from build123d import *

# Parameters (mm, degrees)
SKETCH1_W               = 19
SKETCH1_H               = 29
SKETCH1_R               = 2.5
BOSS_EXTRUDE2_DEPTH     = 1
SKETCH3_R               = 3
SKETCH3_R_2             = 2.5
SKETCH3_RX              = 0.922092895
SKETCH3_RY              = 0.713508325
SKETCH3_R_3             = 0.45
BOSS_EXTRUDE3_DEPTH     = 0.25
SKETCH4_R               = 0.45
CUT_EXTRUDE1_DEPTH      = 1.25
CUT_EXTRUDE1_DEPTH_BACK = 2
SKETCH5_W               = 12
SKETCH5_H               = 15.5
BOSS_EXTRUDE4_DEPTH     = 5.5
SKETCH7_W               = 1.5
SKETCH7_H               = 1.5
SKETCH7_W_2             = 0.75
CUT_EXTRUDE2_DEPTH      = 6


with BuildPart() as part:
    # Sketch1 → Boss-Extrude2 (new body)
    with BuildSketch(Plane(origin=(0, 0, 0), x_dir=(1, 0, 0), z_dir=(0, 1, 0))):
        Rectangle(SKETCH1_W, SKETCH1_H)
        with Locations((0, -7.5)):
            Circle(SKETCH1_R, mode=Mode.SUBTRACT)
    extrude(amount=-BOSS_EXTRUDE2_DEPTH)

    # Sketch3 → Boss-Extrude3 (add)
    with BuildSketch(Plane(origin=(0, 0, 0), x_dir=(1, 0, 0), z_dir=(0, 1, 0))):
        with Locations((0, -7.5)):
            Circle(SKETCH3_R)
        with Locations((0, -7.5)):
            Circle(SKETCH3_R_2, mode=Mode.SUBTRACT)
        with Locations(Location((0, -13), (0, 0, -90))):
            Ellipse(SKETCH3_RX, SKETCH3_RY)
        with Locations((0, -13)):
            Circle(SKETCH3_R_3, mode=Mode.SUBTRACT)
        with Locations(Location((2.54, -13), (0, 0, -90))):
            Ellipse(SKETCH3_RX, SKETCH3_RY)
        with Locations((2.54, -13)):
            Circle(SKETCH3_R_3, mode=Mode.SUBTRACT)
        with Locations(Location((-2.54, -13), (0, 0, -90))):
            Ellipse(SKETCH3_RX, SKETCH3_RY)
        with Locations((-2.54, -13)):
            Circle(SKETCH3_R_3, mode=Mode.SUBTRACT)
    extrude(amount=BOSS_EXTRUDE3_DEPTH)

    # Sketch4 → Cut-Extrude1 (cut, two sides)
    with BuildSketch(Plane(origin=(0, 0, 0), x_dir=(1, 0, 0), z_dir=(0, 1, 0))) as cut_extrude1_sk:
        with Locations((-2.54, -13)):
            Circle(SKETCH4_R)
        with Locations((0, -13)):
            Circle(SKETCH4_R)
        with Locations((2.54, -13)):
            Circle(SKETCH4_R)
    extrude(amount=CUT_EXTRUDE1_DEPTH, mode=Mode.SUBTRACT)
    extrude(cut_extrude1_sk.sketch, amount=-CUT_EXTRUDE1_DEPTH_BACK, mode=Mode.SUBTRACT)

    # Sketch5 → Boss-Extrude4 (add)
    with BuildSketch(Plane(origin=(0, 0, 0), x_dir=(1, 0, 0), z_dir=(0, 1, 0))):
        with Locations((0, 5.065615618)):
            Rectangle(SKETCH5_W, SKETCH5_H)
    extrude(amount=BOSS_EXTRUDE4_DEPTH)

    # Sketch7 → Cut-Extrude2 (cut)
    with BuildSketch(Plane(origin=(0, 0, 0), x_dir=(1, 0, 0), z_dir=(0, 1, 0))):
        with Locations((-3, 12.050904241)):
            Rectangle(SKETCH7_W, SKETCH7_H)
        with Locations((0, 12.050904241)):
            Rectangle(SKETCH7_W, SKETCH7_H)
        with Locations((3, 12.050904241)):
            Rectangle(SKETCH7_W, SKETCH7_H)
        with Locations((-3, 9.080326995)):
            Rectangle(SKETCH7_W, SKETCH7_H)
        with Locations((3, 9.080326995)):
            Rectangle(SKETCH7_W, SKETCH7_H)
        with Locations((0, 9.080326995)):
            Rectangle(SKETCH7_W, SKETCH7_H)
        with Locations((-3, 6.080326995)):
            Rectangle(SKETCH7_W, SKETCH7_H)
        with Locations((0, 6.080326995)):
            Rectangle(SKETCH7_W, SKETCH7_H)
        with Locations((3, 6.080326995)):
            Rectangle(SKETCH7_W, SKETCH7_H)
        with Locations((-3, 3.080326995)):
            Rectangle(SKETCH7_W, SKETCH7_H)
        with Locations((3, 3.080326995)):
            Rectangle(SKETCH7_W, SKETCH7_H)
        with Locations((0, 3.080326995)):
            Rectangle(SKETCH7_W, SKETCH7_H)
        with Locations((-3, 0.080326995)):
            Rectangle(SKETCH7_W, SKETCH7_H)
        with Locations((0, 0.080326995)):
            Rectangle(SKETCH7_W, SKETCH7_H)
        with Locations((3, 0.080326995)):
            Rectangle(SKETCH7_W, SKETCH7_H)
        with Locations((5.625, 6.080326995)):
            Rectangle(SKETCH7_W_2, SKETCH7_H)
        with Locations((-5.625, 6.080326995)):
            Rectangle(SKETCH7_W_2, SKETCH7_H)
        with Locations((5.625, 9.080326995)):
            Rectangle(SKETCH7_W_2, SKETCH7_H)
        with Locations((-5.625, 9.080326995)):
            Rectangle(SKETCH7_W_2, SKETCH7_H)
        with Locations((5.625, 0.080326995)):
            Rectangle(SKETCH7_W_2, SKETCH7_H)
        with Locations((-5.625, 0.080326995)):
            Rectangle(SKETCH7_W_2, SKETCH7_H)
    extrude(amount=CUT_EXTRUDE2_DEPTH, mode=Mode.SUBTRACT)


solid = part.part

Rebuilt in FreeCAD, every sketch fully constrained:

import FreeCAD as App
import Part
import Sketcher

doc = App.newDocument("Part")
body = doc.addObject("PartDesign::Body", "Body")

# Sketch on XZ plane
sketch1 = body.newObject("Sketcher::SketchObject", "Sketch")
sketch1.AttachmentSupport = (doc.getObject("XZ_Plane"), [""])
sketch1.MapMode = "FlatFace"
sketch1.addGeometry(Part.LineSegment(App.Vector(-9.5, -14.5, 0), App.Vector(-9.5, 14.5, 0)), False)
sketch1.addGeometry(Part.LineSegment(App.Vector(-9.5, 14.5, 0), App.Vector(9.5, 14.5, 0)), False)
sketch1.addGeometry(Part.LineSegment(App.Vector(9.5, 14.5, 0), App.Vector(9.5, -14.5, 0)), False)
sketch1.addGeometry(Part.LineSegment(App.Vector(9.5, -14.5, 0), App.Vector(-9.5, -14.5, 0)), False)
sketch1.addGeometry(Part.Circle(App.Vector(0, 7.5, 0), App.Vector(0, 0, 1), 2.5), False)
sketch1.addConstraint(Sketcher.Constraint("Coincident", 0, 2, 1, 1))
sketch1.addConstraint(Sketcher.Constraint("Coincident", 1, 2, 2, 1))
sketch1.addConstraint(Sketcher.Constraint("Coincident", 2, 2, 3, 1))
sketch1.addConstraint(Sketcher.Constraint("Coincident", 3, 2, 0, 1))
sketch1.addConstraint(Sketcher.Constraint("Vertical", 0))
sketch1.addConstraint(Sketcher.Constraint("Horizontal", 1))
sketch1.addConstraint(Sketcher.Constraint("Vertical", 2))
sketch1.addConstraint(Sketcher.Constraint("Horizontal", 3))
sketch1.addConstraint(Sketcher.Constraint("Symmetric", 0, 2, 2, 2, -1, 1))
sketch1.addConstraint(Sketcher.Constraint("PointOnObject", 4, 3, -2))
sketch1.addConstraint(Sketcher.Constraint("Diameter", 4, 5.0))
sketch1.addConstraint(Sketcher.Constraint("DistanceX", 1, 1, 1, 2, 19.0))
sketch1.addConstraint(Sketcher.Constraint("DistanceY", 0, 1, 0, 2, 29.0))
sketch1.addConstraint(Sketcher.Constraint("DistanceY", 4, 3, 0, 2, 7.0))
pad1 = body.newObject("PartDesign::Pad", "Pad")
pad1.Profile = sketch1
pad1.Length = 1

# Sketch on XZ plane
sketch2 = body.newObject("Sketcher::SketchObject", "Sketch001")
sketch2.AttachmentSupport = (doc.getObject("XZ_Plane"), [""])
sketch2.MapMode = "FlatFace"
sketch2.addGeometry(Part.Circle(App.Vector(0, 7.5, 0), App.Vector(0, 0, 1), 3), False)
sketch2.addGeometry(Part.Circle(App.Vector(0, 7.5, 0), App.Vector(0, 0, 1), 2.5), False)
sketch2.addGeometry(Part.Ellipse(App.Vector(0, 13.922093, 0), App.Vector(-0.713508, 13, 0), App.Vector(0, 13, 0)), False)
sketch2.addGeometry(Part.Circle(App.Vector(0, 13, 0), App.Vector(0, 0, 1), 0.45), False)
sketch2.addGeometry(Part.Ellipse(App.Vector(2.54, 13.922093, 0), App.Vector(1.826492, 13, 0), App.Vector(2.54, 13, 0)), False)
sketch2.addGeometry(Part.Circle(App.Vector(2.54, 13, 0), App.Vector(0, 0, 1), 0.45), False)
sketch2.addGeometry(Part.Ellipse(App.Vector(-2.54, 13.922093, 0), App.Vector(-3.253508, 13, 0), App.Vector(-2.54, 13, 0)), False)
sketch2.addGeometry(Part.Circle(App.Vector(-2.54, 13, 0), App.Vector(0, 0, 1), 0.45), False)
sketch2.addConstraint(Sketcher.Constraint("Block", 2))
sketch2.addConstraint(Sketcher.Constraint("Block", 4))
sketch2.addConstraint(Sketcher.Constraint("Block", 6))
sketch2.addConstraint(Sketcher.Constraint("Coincident", 1, 3, 0, 3))
sketch2.addConstraint(Sketcher.Constraint("Equal", 3, 5))
sketch2.addConstraint(Sketcher.Constraint("Equal", 5, 7))
sketch2.addConstraint(Sketcher.Constraint("Symmetric", 5, 3, 7, 3, -2))
sketch2.addConstraint(Sketcher.Constraint("PointOnObject", 0, 3, -2))
sketch2.addConstraint(Sketcher.Constraint("PointOnObject", 3, 3, -2))
sketch2.addConstraint(Sketcher.Constraint("Horizontal", 3, 3, 5, 3))
sketch2.addConstraint(Sketcher.Constraint("Diameter", 0, 6.0))
sketch2.addConstraint(Sketcher.Constraint("Diameter", 1, 5.0))
sketch2.addConstraint(Sketcher.Constraint("Diameter", 3, 0.9))
sketch2.addConstraint(Sketcher.Constraint("DistanceY", -1, 1, 3, 3, 13.0))
sketch2.addConstraint(Sketcher.Constraint("DistanceY", -1, 1, 0, 3, 7.5))
sketch2.addConstraint(Sketcher.Constraint("DistanceX", -1, 1, 5, 3, 2.54))
pad2 = body.newObject("PartDesign::Pad", "Pad001")
pad2.Profile = sketch2
pad2.Length = 0.25
pad2.Reversed = True

# Sketch on XZ plane
sketch3 = body.newObject("Sketcher::SketchObject", "Sketch002")
sketch3.AttachmentSupport = (doc.getObject("XZ_Plane"), [""])
sketch3.MapMode = "FlatFace"
sketch3.addGeometry(Part.Circle(App.Vector(-2.54, 13, 0), App.Vector(0, 0, 1), 0.45), False)
sketch3.addGeometry(Part.Circle(App.Vector(0, 13, 0), App.Vector(0, 0, 1), 0.45), False)
sketch3.addGeometry(Part.Circle(App.Vector(2.54, 13, 0), App.Vector(0, 0, 1), 0.45), False)
sketch3.addConstraint(Sketcher.Constraint("Equal", 0, 1))
sketch3.addConstraint(Sketcher.Constraint("Equal", 1, 2))
sketch3.addConstraint(Sketcher.Constraint("Symmetric", 0, 3, 2, 3, -2))
sketch3.addConstraint(Sketcher.Constraint("PointOnObject", 1, 3, -2))
sketch3.addConstraint(Sketcher.Constraint("Horizontal", 0, 3, 1, 3))
sketch3.addConstraint(Sketcher.Constraint("Diameter", 0, 0.9))
sketch3.addConstraint(Sketcher.Constraint("DistanceY", -1, 1, 0, 3, 13.0))
sketch3.addConstraint(Sketcher.Constraint("DistanceX", 0, 3, -1, 1, 2.54))
pocket1 = body.newObject("PartDesign::Pocket", "Pocket")
pocket1.Profile = sketch3
pocket1.Type = "ThroughAll"
pocket1.Midplane = True

# Sketch on XZ plane
sketch4 = body.newObject("Sketcher::SketchObject", "Sketch003")
sketch4.AttachmentSupport = (doc.getObject("XZ_Plane"), [""])
sketch4.MapMode = "FlatFace"
sketch4.addGeometry(Part.LineSegment(App.Vector(-6, -12.815616, 0), App.Vector(-6, 2.684384, 0)), False)
sketch4.addGeometry(Part.LineSegment(App.Vector(-6, 2.684384, 0), App.Vector(6, 2.684384, 0)), False)
sketch4.addGeometry(Part.LineSegment(App.Vector(6, 2.684384, 0), App.Vector(6, -12.815616, 0)), False)
sketch4.addGeometry(Part.LineSegment(App.Vector(6, -12.815616, 0), App.Vector(-6, -12.815616, 0)), False)
sketch4.addConstraint(Sketcher.Constraint("Coincident", 0, 2, 1, 1))
sketch4.addConstraint(Sketcher.Constraint("Coincident", 1, 2, 2, 1))
sketch4.addConstraint(Sketcher.Constraint("Coincident", 2, 2, 3, 1))
sketch4.addConstraint(Sketcher.Constraint("Coincident", 3, 2, 0, 1))
sketch4.addConstraint(Sketcher.Constraint("Vertical", 0))
sketch4.addConstraint(Sketcher.Constraint("Horizontal", 1))
sketch4.addConstraint(Sketcher.Constraint("Vertical", 2))
sketch4.addConstraint(Sketcher.Constraint("Horizontal", 3))
sketch4.addConstraint(Sketcher.Constraint("DistanceX", 1, 1, 1, 2, 12.0))
sketch4.addConstraint(Sketcher.Constraint("DistanceY", 0, 1, 0, 2, 15.5))
sketch4.addConstraint(Sketcher.Constraint("DistanceX", 0, 2, -1, 1, 6.0))
sketch4.addConstraint(Sketcher.Constraint("DistanceY", -1, 1, 0, 2, 2.684384))
pad3 = body.newObject("PartDesign::Pad", "Pad002")
pad3.Profile = sketch4
pad3.Length = 5.5
pad3.Reversed = True

# Sketch on XZ plane
sketch5 = body.newObject("Sketcher::SketchObject", "Sketch004")
sketch5.AttachmentSupport = (doc.getObject("XZ_Plane"), [""])
sketch5.MapMode = "FlatFace"
sketch5.addGeometry(Part.LineSegment(App.Vector(-3.75, -12.800904, 0), App.Vector(-3.75, -11.300904, 0)), False)
sketch5.addGeometry(Part.LineSegment(App.Vector(-3.75, -11.300904, 0), App.Vector(-2.25, -11.300904, 0)), False)
sketch5.addGeometry(Part.LineSegment(App.Vector(-2.25, -11.300904, 0), App.Vector(-2.25, -12.800904, 0)), False)
sketch5.addGeometry(Part.LineSegment(App.Vector(-2.25, -12.800904, 0), App.Vector(-3.75, -12.800904, 0)), False)
sketch5.addGeometry(Part.LineSegment(App.Vector(-0.75, -12.800904, 0), App.Vector(-0.75, -11.300904, 0)), False)
sketch5.addGeometry(Part.LineSegment(App.Vector(-0.75, -11.300904, 0), App.Vector(0.75, -11.300904, 0)), False)
sketch5.addGeometry(Part.LineSegment(App.Vector(0.75, -11.300904, 0), App.Vector(0.75, -12.800904, 0)), False)
sketch5.addGeometry(Part.LineSegment(App.Vector(0.75, -12.800904, 0), App.Vector(-0.75, -12.800904, 0)), False)
sketch5.addGeometry(Part.LineSegment(App.Vector(2.25, -12.800904, 0), App.Vector(2.25, -11.300904, 0)), False)
sketch5.addGeometry(Part.LineSegment(App.Vector(2.25, -11.300904, 0), App.Vector(3.75, -11.300904, 0)), False)
sketch5.addGeometry(Part.LineSegment(App.Vector(3.75, -11.300904, 0), App.Vector(3.75, -12.800904, 0)), False)
sketch5.addGeometry(Part.LineSegment(App.Vector(3.75, -12.800904, 0), App.Vector(2.25, -12.800904, 0)), False)
sketch5.addGeometry(Part.LineSegment(App.Vector(-3.75, -9.830327, 0), App.Vector(-3.75, -8.330327, 0)), False)
sketch5.addGeometry(Part.LineSegment(App.Vector(-3.75, -8.330327, 0), App.Vector(-2.25, -8.330327, 0)), False)
sketch5.addGeometry(Part.LineSegment(App.Vector(-2.25, -8.330327, 0), App.Vector(-2.25, -9.830327, 0)), False)
sketch5.addGeometry(Part.LineSegment(App.Vector(-2.25, -9.830327, 0), App.Vector(-3.75, -9.830327, 0)), False)
sketch5.addGeometry(Part.LineSegment(App.Vector(2.25, -9.830327, 0), App.Vector(2.25, -8.330327, 0)), False)
sketch5.addGeometry(Part.LineSegment(App.Vector(2.25, -8.330327, 0), App.Vector(3.75, -8.330327, 0)), False)
sketch5.addGeometry(Part.LineSegment(App.Vector(3.75, -8.330327, 0), App.Vector(3.75, -9.830327, 0)), False)
sketch5.addGeometry(Part.LineSegment(App.Vector(3.75, -9.830327, 0), App.Vector(2.25, -9.830327, 0)), False)
sketch5.addGeometry(Part.LineSegment(App.Vector(-0.75, -9.830327, 0), App.Vector(-0.75, -8.330327, 0)), False)
sketch5.addGeometry(Part.LineSegment(App.Vector(-0.75, -8.330327, 0), App.Vector(0.75, -8.330327, 0)), False)
sketch5.addGeometry(Part.LineSegment(App.Vector(0.75, -8.330327, 0), App.Vector(0.75, -9.830327, 0)), False)
sketch5.addGeometry(Part.LineSegment(App.Vector(0.75, -9.830327, 0), App.Vector(-0.75, -9.830327, 0)), False)
sketch5.addGeometry(Part.LineSegment(App.Vector(-3.75, -6.830327, 0), App.Vector(-3.75, -5.330327, 0)), False)
sketch5.addGeometry(Part.LineSegment(App.Vector(-3.75, -5.330327, 0), App.Vector(-2.25, -5.330327, 0)), False)
sketch5.addGeometry(Part.LineSegment(App.Vector(-2.25, -5.330327, 0), App.Vector(-2.25, -6.830327, 0)), False)
sketch5.addGeometry(Part.LineSegment(App.Vector(-2.25, -6.830327, 0), App.Vector(-3.75, -6.830327, 0)), False)
sketch5.addGeometry(Part.LineSegment(App.Vector(-0.75, -6.830327, 0), App.Vector(-0.75, -5.330327, 0)), False)
sketch5.addGeometry(Part.LineSegment(App.Vector(-0.75, -5.330327, 0), App.Vector(0.75, -5.330327, 0)), False)
sketch5.addGeometry(Part.LineSegment(App.Vector(0.75, -5.330327, 0), App.Vector(0.75, -6.830327, 0)), False)
sketch5.addGeometry(Part.LineSegment(App.Vector(0.75, -6.830327, 0), App.Vector(-0.75, -6.830327, 0)), False)
sketch5.addGeometry(Part.LineSegment(App.Vector(2.25, -6.830327, 0), App.Vector(2.25, -5.330327, 0)), False)
sketch5.addGeometry(Part.LineSegment(App.Vector(2.25, -5.330327, 0), App.Vector(3.75, -5.330327, 0)), False)
sketch5.addGeometry(Part.LineSegment(App.Vector(3.75, -5.330327, 0), App.Vector(3.75, -6.830327, 0)), False)
sketch5.addGeometry(Part.LineSegment(App.Vector(3.75, -6.830327, 0), App.Vector(2.25, -6.830327, 0)), False)
sketch5.addGeometry(Part.LineSegment(App.Vector(-3.75, -3.830327, 0), App.Vector(-3.75, -2.330327, 0)), False)
sketch5.addGeometry(Part.LineSegment(App.Vector(-3.75, -2.330327, 0), App.Vector(-2.25, -2.330327, 0)), False)
sketch5.addGeometry(Part.LineSegment(App.Vector(-2.25, -2.330327, 0), App.Vector(-2.25, -3.830327, 0)), False)
sketch5.addGeometry(Part.LineSegment(App.Vector(-2.25, -3.830327, 0), App.Vector(-3.75, -3.830327, 0)), False)
sketch5.addGeometry(Part.LineSegment(App.Vector(2.25, -3.830327, 0), App.Vector(2.25, -2.330327, 0)), False)
sketch5.addGeometry(Part.LineSegment(App.Vector(2.25, -2.330327, 0), App.Vector(3.75, -2.330327, 0)), False)
sketch5.addGeometry(Part.LineSegment(App.Vector(3.75, -2.330327, 0), App.Vector(3.75, -3.830327, 0)), False)
sketch5.addGeometry(Part.LineSegment(App.Vector(3.75, -3.830327, 0), App.Vector(2.25, -3.830327, 0)), False)
sketch5.addGeometry(Part.LineSegment(App.Vector(-0.75, -3.830327, 0), App.Vector(-0.75, -2.330327, 0)), False)
sketch5.addGeometry(Part.LineSegment(App.Vector(-0.75, -2.330327, 0), App.Vector(0.75, -2.330327, 0)), False)
sketch5.addGeometry(Part.LineSegment(App.Vector(0.75, -2.330327, 0), App.Vector(0.75, -3.830327, 0)), False)
sketch5.addGeometry(Part.LineSegment(App.Vector(0.75, -3.830327, 0), App.Vector(-0.75, -3.830327, 0)), False)
sketch5.addGeometry(Part.LineSegment(App.Vector(-3.75, -0.830327, 0), App.Vector(-3.75, 0.669673, 0)), False)
sketch5.addGeometry(Part.LineSegment(App.Vector(-3.75, 0.669673, 0), App.Vector(-2.25, 0.669673, 0)), False)
sketch5.addGeometry(Part.LineSegment(App.Vector(-2.25, 0.669673, 0), App.Vector(-2.25, -0.830327, 0)), False)
sketch5.addGeometry(Part.LineSegment(App.Vector(-2.25, -0.830327, 0), App.Vector(-3.75, -0.830327, 0)), False)
sketch5.addGeometry(Part.LineSegment(App.Vector(-0.75, -0.830327, 0), App.Vector(-0.75, 0.669673, 0)), False)
sketch5.addGeometry(Part.LineSegment(App.Vector(-0.75, 0.669673, 0), App.Vector(0.75, 0.669673, 0)), False)
sketch5.addGeometry(Part.LineSegment(App.Vector(0.75, 0.669673, 0), App.Vector(0.75, -0.830327, 0)), False)
sketch5.addGeometry(Part.LineSegment(App.Vector(0.75, -0.830327, 0), App.Vector(-0.75, -0.830327, 0)), False)
sketch5.addGeometry(Part.LineSegment(App.Vector(2.25, -0.830327, 0), App.Vector(2.25, 0.669673, 0)), False)
sketch5.addGeometry(Part.LineSegment(App.Vector(2.25, 0.669673, 0), App.Vector(3.75, 0.669673, 0)), False)
sketch5.addGeometry(Part.LineSegment(App.Vector(3.75, 0.669673, 0), App.Vector(3.75, -0.830327, 0)), False)
sketch5.addGeometry(Part.LineSegment(App.Vector(3.75, -0.830327, 0), App.Vector(2.25, -0.830327, 0)), False)
sketch5.addGeometry(Part.LineSegment(App.Vector(5.25, -6.830327, 0), App.Vector(5.25, -5.330327, 0)), False)
sketch5.addGeometry(Part.LineSegment(App.Vector(5.25, -5.330327, 0), App.Vector(6, -5.330327, 0)), False)
sketch5.addGeometry(Part.LineSegment(App.Vector(6, -5.330327, 0), App.Vector(6, -6.830327, 0)), False)
sketch5.addGeometry(Part.LineSegment(App.Vector(6, -6.830327, 0), App.Vector(5.25, -6.830327, 0)), False)
sketch5.addGeometry(Part.LineSegment(App.Vector(-6, -6.830327, 0), App.Vector(-6, -5.330327, 0)), False)
sketch5.addGeometry(Part.LineSegment(App.Vector(-6, -5.330327, 0), App.Vector(-5.25, -5.330327, 0)), False)
sketch5.addGeometry(Part.LineSegment(App.Vector(-5.25, -5.330327, 0), App.Vector(-5.25, -6.830327, 0)), False)
sketch5.addGeometry(Part.LineSegment(App.Vector(-5.25, -6.830327, 0), App.Vector(-6, -6.830327, 0)), False)
sketch5.addGeometry(Part.LineSegment(App.Vector(5.25, -9.830327, 0), App.Vector(5.25, -8.330327, 0)), False)
sketch5.addGeometry(Part.LineSegment(App.Vector(5.25, -8.330327, 0), App.Vector(6, -8.330327, 0)), False)
sketch5.addGeometry(Part.LineSegment(App.Vector(6, -8.330327, 0), App.Vector(6, -9.830327, 0)), False)
sketch5.addGeometry(Part.LineSegment(App.Vector(6, -9.830327, 0), App.Vector(5.25, -9.830327, 0)), False)
sketch5.addGeometry(Part.LineSegment(App.Vector(-6, -9.830327, 0), App.Vector(-6, -8.330327, 0)), False)
sketch5.addGeometry(Part.LineSegment(App.Vector(-6, -8.330327, 0), App.Vector(-5.25, -8.330327, 0)), False)
sketch5.addGeometry(Part.LineSegment(App.Vector(-5.25, -8.330327, 0), App.Vector(-5.25, -9.830327, 0)), False)
sketch5.addGeometry(Part.LineSegment(App.Vector(-5.25, -9.830327, 0), App.Vector(-6, -9.830327, 0)), False)
sketch5.addGeometry(Part.LineSegment(App.Vector(5.25, -0.830327, 0), App.Vector(5.25, 0.669673, 0)), False)
sketch5.addGeometry(Part.LineSegment(App.Vector(5.25, 0.669673, 0), App.Vector(6, 0.669673, 0)), False)
sketch5.addGeometry(Part.LineSegment(App.Vector(6, 0.669673, 0), App.Vector(6, -0.830327, 0)), False)
sketch5.addGeometry(Part.LineSegment(App.Vector(6, -0.830327, 0), App.Vector(5.25, -0.830327, 0)), False)
sketch5.addGeometry(Part.LineSegment(App.Vector(-6, -0.830327, 0), App.Vector(-6, 0.669673, 0)), False)
sketch5.addGeometry(Part.LineSegment(App.Vector(-6, 0.669673, 0), App.Vector(-5.25, 0.669673, 0)), False)
sketch5.addGeometry(Part.LineSegment(App.Vector(-5.25, 0.669673, 0), App.Vector(-5.25, -0.830327, 0)), False)
sketch5.addGeometry(Part.LineSegment(App.Vector(-5.25, -0.830327, 0), App.Vector(-6, -0.830327, 0)), False)
sketch5.addConstraint(Sketcher.Constraint("Coincident", 0, 2, 1, 1))
sketch5.addConstraint(Sketcher.Constraint("Coincident", 1, 2, 2, 1))
sketch5.addConstraint(Sketcher.Constraint("Coincident", 2, 2, 3, 1))
sketch5.addConstraint(Sketcher.Constraint("Coincident", 3, 2, 0, 1))
sketch5.addConstraint(Sketcher.Constraint("Coincident", 4, 2, 5, 1))
sketch5.addConstraint(Sketcher.Constraint("Coincident", 5, 2, 6, 1))
sketch5.addConstraint(Sketcher.Constraint("Coincident", 6, 2, 7, 1))
sketch5.addConstraint(Sketcher.Constraint("Coincident", 7, 2, 4, 1))
sketch5.addConstraint(Sketcher.Constraint("Coincident", 8, 2, 9, 1))
sketch5.addConstraint(Sketcher.Constraint("Coincident", 9, 2, 10, 1))
sketch5.addConstraint(Sketcher.Constraint("Coincident", 10, 2, 11, 1))
sketch5.addConstraint(Sketcher.Constraint("Coincident", 11, 2, 8, 1))
sketch5.addConstraint(Sketcher.Constraint("Coincident", 12, 2, 13, 1))
sketch5.addConstraint(Sketcher.Constraint("Coincident", 13, 2, 14, 1))
sketch5.addConstraint(Sketcher.Constraint("Coincident", 14, 2, 15, 1))
sketch5.addConstraint(Sketcher.Constraint("Coincident", 15, 2, 12, 1))
sketch5.addConstraint(Sketcher.Constraint("Coincident", 16, 2, 17, 1))
sketch5.addConstraint(Sketcher.Constraint("Coincident", 17, 2, 18, 1))
sketch5.addConstraint(Sketcher.Constraint("Coincident", 18, 2, 19, 1))
sketch5.addConstraint(Sketcher.Constraint("Coincident", 19, 2, 16, 1))
sketch5.addConstraint(Sketcher.Constraint("Coincident", 20, 2, 21, 1))
sketch5.addConstraint(Sketcher.Constraint("Coincident", 21, 2, 22, 1))
sketch5.addConstraint(Sketcher.Constraint("Coincident", 22, 2, 23, 1))
sketch5.addConstraint(Sketcher.Constraint("Coincident", 23, 2, 20, 1))
sketch5.addConstraint(Sketcher.Constraint("Coincident", 24, 2, 25, 1))
sketch5.addConstraint(Sketcher.Constraint("Coincident", 25, 2, 26, 1))
sketch5.addConstraint(Sketcher.Constraint("Coincident", 26, 2, 27, 1))
sketch5.addConstraint(Sketcher.Constraint("Coincident", 27, 2, 24, 1))
sketch5.addConstraint(Sketcher.Constraint("Coincident", 28, 2, 29, 1))
sketch5.addConstraint(Sketcher.Constraint("Coincident", 29, 2, 30, 1))
sketch5.addConstraint(Sketcher.Constraint("Coincident", 30, 2, 31, 1))
sketch5.addConstraint(Sketcher.Constraint("Coincident", 31, 2, 28, 1))
sketch5.addConstraint(Sketcher.Constraint("Coincident", 32, 2, 33, 1))
sketch5.addConstraint(Sketcher.Constraint("Coincident", 33, 2, 34, 1))
sketch5.addConstraint(Sketcher.Constraint("Coincident", 34, 2, 35, 1))
sketch5.addConstraint(Sketcher.Constraint("Coincident", 35, 2, 32, 1))
sketch5.addConstraint(Sketcher.Constraint("Coincident", 36, 2, 37, 1))
sketch5.addConstraint(Sketcher.Constraint("Coincident", 37, 2, 38, 1))
sketch5.addConstraint(Sketcher.Constraint("Coincident", 38, 2, 39, 1))
sketch5.addConstraint(Sketcher.Constraint("Coincident", 39, 2, 36, 1))
sketch5.addConstraint(Sketcher.Constraint("Coincident", 40, 2, 41, 1))
sketch5.addConstraint(Sketcher.Constraint("Coincident", 41, 2, 42, 1))
sketch5.addConstraint(Sketcher.Constraint("Coincident", 42, 2, 43, 1))
sketch5.addConstraint(Sketcher.Constraint("Coincident", 43, 2, 40, 1))
sketch5.addConstraint(Sketcher.Constraint("Coincident", 44, 2, 45, 1))
sketch5.addConstraint(Sketcher.Constraint("Coincident", 45, 2, 46, 1))
sketch5.addConstraint(Sketcher.Constraint("Coincident", 46, 2, 47, 1))
sketch5.addConstraint(Sketcher.Constraint("Coincident", 47, 2, 44, 1))
sketch5.addConstraint(Sketcher.Constraint("Coincident", 48, 2, 49, 1))
sketch5.addConstraint(Sketcher.Constraint("Coincident", 49, 2, 50, 1))
sketch5.addConstraint(Sketcher.Constraint("Coincident", 50, 2, 51, 1))
sketch5.addConstraint(Sketcher.Constraint("Coincident", 51, 2, 48, 1))
sketch5.addConstraint(Sketcher.Constraint("Coincident", 52, 2, 53, 1))
sketch5.addConstraint(Sketcher.Constraint("Coincident", 53, 2, 54, 1))
sketch5.addConstraint(Sketcher.Constraint("Coincident", 54, 2, 55, 1))
sketch5.addConstraint(Sketcher.Constraint("Coincident", 55, 2, 52, 1))
sketch5.addConstraint(Sketcher.Constraint("Coincident", 56, 2, 57, 1))
sketch5.addConstraint(Sketcher.Constraint("Coincident", 57, 2, 58, 1))
sketch5.addConstraint(Sketcher.Constraint("Coincident", 58, 2, 59, 1))
sketch5.addConstraint(Sketcher.Constraint("Coincident", 59, 2, 56, 1))
sketch5.addConstraint(Sketcher.Constraint("Coincident", 60, 2, 61, 1))
sketch5.addConstraint(Sketcher.Constraint("Coincident", 61, 2, 62, 1))
sketch5.addConstraint(Sketcher.Constraint("Coincident", 62, 2, 63, 1))
sketch5.addConstraint(Sketcher.Constraint("Coincident", 63, 2, 60, 1))
sketch5.addConstraint(Sketcher.Constraint("Coincident", 64, 2, 65, 1))
sketch5.addConstraint(Sketcher.Constraint("Coincident", 65, 2, 66, 1))
sketch5.addConstraint(Sketcher.Constraint("Coincident", 66, 2, 67, 1))
sketch5.addConstraint(Sketcher.Constraint("Coincident", 67, 2, 64, 1))
sketch5.addConstraint(Sketcher.Constraint("Coincident", 68, 2, 69, 1))
sketch5.addConstraint(Sketcher.Constraint("Coincident", 69, 2, 70, 1))
sketch5.addConstraint(Sketcher.Constraint("Coincident", 70, 2, 71, 1))
sketch5.addConstraint(Sketcher.Constraint("Coincident", 71, 2, 68, 1))
sketch5.addConstraint(Sketcher.Constraint("Coincident", 72, 2, 73, 1))
sketch5.addConstraint(Sketcher.Constraint("Coincident", 73, 2, 74, 1))
sketch5.addConstraint(Sketcher.Constraint("Coincident", 74, 2, 75, 1))
sketch5.addConstraint(Sketcher.Constraint("Coincident", 75, 2, 72, 1))
sketch5.addConstraint(Sketcher.Constraint("Coincident", 76, 2, 77, 1))
sketch5.addConstraint(Sketcher.Constraint("Coincident", 77, 2, 78, 1))
sketch5.addConstraint(Sketcher.Constraint("Coincident", 78, 2, 79, 1))
sketch5.addConstraint(Sketcher.Constraint("Coincident", 79, 2, 76, 1))
sketch5.addConstraint(Sketcher.Constraint("Coincident", 80, 2, 81, 1))
sketch5.addConstraint(Sketcher.Constraint("Coincident", 81, 2, 82, 1))
sketch5.addConstraint(Sketcher.Constraint("Coincident", 82, 2, 83, 1))
sketch5.addConstraint(Sketcher.Constraint("Coincident", 83, 2, 80, 1))
sketch5.addConstraint(Sketcher.Constraint("Vertical", 0))
sketch5.addConstraint(Sketcher.Constraint("Horizontal", 1))
sketch5.addConstraint(Sketcher.Constraint("Vertical", 2))
sketch5.addConstraint(Sketcher.Constraint("Horizontal", 3))
sketch5.addConstraint(Sketcher.Constraint("Vertical", 4))
sketch5.addConstraint(Sketcher.Constraint("Horizontal", 5))
sketch5.addConstraint(Sketcher.Constraint("Vertical", 6))
sketch5.addConstraint(Sketcher.Constraint("Horizontal", 7))
sketch5.addConstraint(Sketcher.Constraint("Vertical", 8))
sketch5.addConstraint(Sketcher.Constraint("Horizontal", 9))
sketch5.addConstraint(Sketcher.Constraint("Vertical", 10))
sketch5.addConstraint(Sketcher.Constraint("Horizontal", 11))
sketch5.addConstraint(Sketcher.Constraint("Vertical", 12))
sketch5.addConstraint(Sketcher.Constraint("Horizontal", 13))
sketch5.addConstraint(Sketcher.Constraint("Vertical", 14))
sketch5.addConstraint(Sketcher.Constraint("Horizontal", 15))
sketch5.addConstraint(Sketcher.Constraint("Vertical", 16))
sketch5.addConstraint(Sketcher.Constraint("Horizontal", 17))
sketch5.addConstraint(Sketcher.Constraint("Vertical", 18))
sketch5.addConstraint(Sketcher.Constraint("Horizontal", 19))
sketch5.addConstraint(Sketcher.Constraint("Vertical", 20))
sketch5.addConstraint(Sketcher.Constraint("Horizontal", 21))
sketch5.addConstraint(Sketcher.Constraint("Vertical", 22))
sketch5.addConstraint(Sketcher.Constraint("Horizontal", 23))
sketch5.addConstraint(Sketcher.Constraint("Vertical", 24))
sketch5.addConstraint(Sketcher.Constraint("Horizontal", 25))
sketch5.addConstraint(Sketcher.Constraint("Vertical", 26))
sketch5.addConstraint(Sketcher.Constraint("Horizontal", 27))
sketch5.addConstraint(Sketcher.Constraint("Vertical", 28))
sketch5.addConstraint(Sketcher.Constraint("Horizontal", 29))
sketch5.addConstraint(Sketcher.Constraint("Vertical", 30))
sketch5.addConstraint(Sketcher.Constraint("Horizontal", 31))
sketch5.addConstraint(Sketcher.Constraint("Vertical", 32))
sketch5.addConstraint(Sketcher.Constraint("Horizontal", 33))
sketch5.addConstraint(Sketcher.Constraint("Vertical", 34))
sketch5.addConstraint(Sketcher.Constraint("Horizontal", 35))
sketch5.addConstraint(Sketcher.Constraint("Vertical", 36))
sketch5.addConstraint(Sketcher.Constraint("Horizontal", 37))
sketch5.addConstraint(Sketcher.Constraint("Vertical", 38))
sketch5.addConstraint(Sketcher.Constraint("Horizontal", 39))
sketch5.addConstraint(Sketcher.Constraint("Vertical", 40))
sketch5.addConstraint(Sketcher.Constraint("Horizontal", 41))
sketch5.addConstraint(Sketcher.Constraint("Vertical", 42))
sketch5.addConstraint(Sketcher.Constraint("Horizontal", 43))
sketch5.addConstraint(Sketcher.Constraint("Vertical", 44))
sketch5.addConstraint(Sketcher.Constraint("Horizontal", 45))
sketch5.addConstraint(Sketcher.Constraint("Vertical", 46))
sketch5.addConstraint(Sketcher.Constraint("Horizontal", 47))
sketch5.addConstraint(Sketcher.Constraint("Vertical", 48))
sketch5.addConstraint(Sketcher.Constraint("Horizontal", 49))
sketch5.addConstraint(Sketcher.Constraint("Vertical", 50))
sketch5.addConstraint(Sketcher.Constraint("Horizontal", 51))
sketch5.addConstraint(Sketcher.Constraint("Vertical", 52))
sketch5.addConstraint(Sketcher.Constraint("Horizontal", 53))
sketch5.addConstraint(Sketcher.Constraint("Vertical", 54))
sketch5.addConstraint(Sketcher.Constraint("Horizontal", 55))
sketch5.addConstraint(Sketcher.Constraint("Vertical", 56))
sketch5.addConstraint(Sketcher.Constraint("Horizontal", 57))
sketch5.addConstraint(Sketcher.Constraint("Vertical", 58))
sketch5.addConstraint(Sketcher.Constraint("Horizontal", 59))
sketch5.addConstraint(Sketcher.Constraint("Vertical", 60))
sketch5.addConstraint(Sketcher.Constraint("Horizontal", 61))
sketch5.addConstraint(Sketcher.Constraint("Vertical", 62))
sketch5.addConstraint(Sketcher.Constraint("Horizontal", 63))
sketch5.addConstraint(Sketcher.Constraint("Vertical", 64))
sketch5.addConstraint(Sketcher.Constraint("Horizontal", 65))
sketch5.addConstraint(Sketcher.Constraint("Vertical", 66))
sketch5.addConstraint(Sketcher.Constraint("Horizontal", 67))
sketch5.addConstraint(Sketcher.Constraint("Vertical", 68))
sketch5.addConstraint(Sketcher.Constraint("Horizontal", 69))
sketch5.addConstraint(Sketcher.Constraint("Vertical", 70))
sketch5.addConstraint(Sketcher.Constraint("Horizontal", 71))
sketch5.addConstraint(Sketcher.Constraint("Vertical", 72))
sketch5.addConstraint(Sketcher.Constraint("Horizontal", 73))
sketch5.addConstraint(Sketcher.Constraint("Vertical", 74))
sketch5.addConstraint(Sketcher.Constraint("Horizontal", 75))
sketch5.addConstraint(Sketcher.Constraint("Vertical", 76))
sketch5.addConstraint(Sketcher.Constraint("Horizontal", 77))
sketch5.addConstraint(Sketcher.Constraint("Vertical", 78))
sketch5.addConstraint(Sketcher.Constraint("Horizontal", 79))
sketch5.addConstraint(Sketcher.Constraint("Vertical", 80))
sketch5.addConstraint(Sketcher.Constraint("Horizontal", 81))
sketch5.addConstraint(Sketcher.Constraint("Vertical", 82))
sketch5.addConstraint(Sketcher.Constraint("Horizontal", 83))
sketch5.addConstraint(Sketcher.Constraint("Symmetric", 1, 2, 8, 2, -2))
sketch5.addConstraint(Sketcher.Constraint("Symmetric", 3, 2, 10, 2, -2))
sketch5.addConstraint(Sketcher.Constraint("Symmetric", 13, 2, 16, 2, -2))
sketch5.addConstraint(Sketcher.Constraint("Symmetric", 15, 2, 18, 2, -2))
sketch5.addConstraint(Sketcher.Constraint("Symmetric", 25, 2, 32, 2, -2))
sketch5.addConstraint(Sketcher.Constraint("Symmetric", 27, 2, 34, 2, -2))
sketch5.addConstraint(Sketcher.Constraint("Symmetric", 37, 2, 40, 2, -2))
sketch5.addConstraint(Sketcher.Constraint("Symmetric", 39, 2, 42, 2, -2))
sketch5.addConstraint(Sketcher.Constraint("Symmetric", 49, 2, 56, 2, -2))
sketch5.addConstraint(Sketcher.Constraint("Symmetric", 51, 2, 58, 2, -2))
sketch5.addConstraint(Sketcher.Constraint("Symmetric", 61, 2, 64, 2, -2))
sketch5.addConstraint(Sketcher.Constraint("Symmetric", 63, 2, 66, 2, -2))
sketch5.addConstraint(Sketcher.Constraint("Symmetric", 69, 2, 72, 2, -2))
sketch5.addConstraint(Sketcher.Constraint("Symmetric", 71, 2, 74, 2, -2))
sketch5.addConstraint(Sketcher.Constraint("Symmetric", 77, 2, 80, 2, -2))
sketch5.addConstraint(Sketcher.Constraint("Symmetric", 79, 2, 82, 2, -2))
sketch5.addConstraint(Sketcher.Constraint("Horizontal", 1, 2, 4, 2))
sketch5.addConstraint(Sketcher.Constraint("Horizontal", 3, 2, 6, 2))
sketch5.addConstraint(Sketcher.Constraint("Horizontal", 17, 2, 20, 2))
sketch5.addConstraint(Sketcher.Constraint("Horizontal", 19, 2, 22, 2))
sketch5.addConstraint(Sketcher.Constraint("Horizontal", 25, 2, 28, 2))
sketch5.addConstraint(Sketcher.Constraint("Horizontal", 27, 2, 30, 2))
sketch5.addConstraint(Sketcher.Constraint("Horizontal", 41, 2, 44, 2))
sketch5.addConstraint(Sketcher.Constraint("Horizontal", 43, 2, 46, 2))
sketch5.addConstraint(Sketcher.Constraint("Horizontal", 49, 2, 52, 2))
sketch5.addConstraint(Sketcher.Constraint("Horizontal", 51, 2, 54, 2))
sketch5.addConstraint(Sketcher.Constraint("Horizontal", 33, 2, 60, 2))
sketch5.addConstraint(Sketcher.Constraint("Horizontal", 35, 2, 62, 2))
sketch5.addConstraint(Sketcher.Constraint("Horizontal", 21, 2, 68, 2))
sketch5.addConstraint(Sketcher.Constraint("Horizontal", 23, 2, 70, 2))
sketch5.addConstraint(Sketcher.Constraint("Horizontal", 57, 2, 76, 2))
sketch5.addConstraint(Sketcher.Constraint("Horizontal", 59, 2, 78, 2))
sketch5.addConstraint(Sketcher.Constraint("Vertical", 3, 2, 12, 2))
sketch5.addConstraint(Sketcher.Constraint("Vertical", 2, 2, 13, 2))
sketch5.addConstraint(Sketcher.Constraint("Vertical", 7, 2, 20, 2))
sketch5.addConstraint(Sketcher.Constraint("Vertical", 6, 2, 21, 2))
sketch5.addConstraint(Sketcher.Constraint("Vertical", 15, 2, 24, 2))
sketch5.addConstraint(Sketcher.Constraint("Vertical", 14, 2, 25, 2))
sketch5.addConstraint(Sketcher.Constraint("Vertical", 23, 2, 28, 2))
sketch5.addConstraint(Sketcher.Constraint("Vertical", 22, 2, 29, 2))
sketch5.addConstraint(Sketcher.Constraint("Vertical", 27, 2, 36, 2))
sketch5.addConstraint(Sketcher.Constraint("Vertical", 26, 2, 37, 2))
sketch5.addConstraint(Sketcher.Constraint("Vertical", 31, 2, 44, 2))
sketch5.addConstraint(Sketcher.Constraint("Vertical", 30, 2, 45, 2))
sketch5.addConstraint(Sketcher.Constraint("Vertical", 39, 2, 48, 2))
sketch5.addConstraint(Sketcher.Constraint("Vertical", 38, 2, 49, 2))
sketch5.addConstraint(Sketcher.Constraint("Vertical", 47, 2, 52, 2))
sketch5.addConstraint(Sketcher.Constraint("Vertical", 46, 2, 53, 2))
sketch5.addConstraint(Sketcher.Constraint("Vertical", 63, 2, 68, 2))
sketch5.addConstraint(Sketcher.Constraint("Vertical", 62, 2, 69, 2))
sketch5.addConstraint(Sketcher.Constraint("Vertical", 71, 2, 76, 2))
sketch5.addConstraint(Sketcher.Constraint("Vertical", 70, 2, 77, 2))
sketch5.addConstraint(Sketcher.Constraint("Equal", 3, 5))
sketch5.addConstraint(Sketcher.Constraint("Equal", 59, 0))
sketch5.addConstraint(Sketcher.Constraint("Equal", 10, 12))
sketch5.addConstraint(Sketcher.Constraint("Equal", 22, 24))
sketch5.addConstraint(Sketcher.Constraint("Equal", 34, 36))
sketch5.addConstraint(Sketcher.Constraint("Equal", 46, 48))
sketch5.addConstraint(Sketcher.Constraint("DistanceX", 1, 1, 1, 2, 1.5))
sketch5.addConstraint(Sketcher.Constraint("DistanceX", -1, 1, 61, 2, 6.0))
sketch5.addConstraint(Sketcher.Constraint("DistanceX", 61, 1, 61, 2, 0.75))
sketch5.addConstraint(Sketcher.Constraint("DistanceX", 0, 2, -1, 1, 3.75))
sketch5.addConstraint(Sketcher.Constraint("DistanceX", 4, 2, -1, 1, 0.75))
sketch5.addConstraint(Sketcher.Constraint("DistanceY", 0, 2, -1, 1, 11.300904))
sketch5.addConstraint(Sketcher.Constraint("DistanceY", 12, 2, -1, 1, 8.330327))
sketch5.addConstraint(Sketcher.Constraint("DistanceY", 24, 2, -1, 1, 5.330327))
sketch5.addConstraint(Sketcher.Constraint("DistanceY", 36, 2, -1, 1, 2.330327))
sketch5.addConstraint(Sketcher.Constraint("DistanceY", -1, 1, 48, 2, 0.669673))
pocket2 = body.newObject("PartDesign::Pocket", "Pocket001")
pocket2.Profile = sketch5
pocket2.Length = 6

doc.recompute()
